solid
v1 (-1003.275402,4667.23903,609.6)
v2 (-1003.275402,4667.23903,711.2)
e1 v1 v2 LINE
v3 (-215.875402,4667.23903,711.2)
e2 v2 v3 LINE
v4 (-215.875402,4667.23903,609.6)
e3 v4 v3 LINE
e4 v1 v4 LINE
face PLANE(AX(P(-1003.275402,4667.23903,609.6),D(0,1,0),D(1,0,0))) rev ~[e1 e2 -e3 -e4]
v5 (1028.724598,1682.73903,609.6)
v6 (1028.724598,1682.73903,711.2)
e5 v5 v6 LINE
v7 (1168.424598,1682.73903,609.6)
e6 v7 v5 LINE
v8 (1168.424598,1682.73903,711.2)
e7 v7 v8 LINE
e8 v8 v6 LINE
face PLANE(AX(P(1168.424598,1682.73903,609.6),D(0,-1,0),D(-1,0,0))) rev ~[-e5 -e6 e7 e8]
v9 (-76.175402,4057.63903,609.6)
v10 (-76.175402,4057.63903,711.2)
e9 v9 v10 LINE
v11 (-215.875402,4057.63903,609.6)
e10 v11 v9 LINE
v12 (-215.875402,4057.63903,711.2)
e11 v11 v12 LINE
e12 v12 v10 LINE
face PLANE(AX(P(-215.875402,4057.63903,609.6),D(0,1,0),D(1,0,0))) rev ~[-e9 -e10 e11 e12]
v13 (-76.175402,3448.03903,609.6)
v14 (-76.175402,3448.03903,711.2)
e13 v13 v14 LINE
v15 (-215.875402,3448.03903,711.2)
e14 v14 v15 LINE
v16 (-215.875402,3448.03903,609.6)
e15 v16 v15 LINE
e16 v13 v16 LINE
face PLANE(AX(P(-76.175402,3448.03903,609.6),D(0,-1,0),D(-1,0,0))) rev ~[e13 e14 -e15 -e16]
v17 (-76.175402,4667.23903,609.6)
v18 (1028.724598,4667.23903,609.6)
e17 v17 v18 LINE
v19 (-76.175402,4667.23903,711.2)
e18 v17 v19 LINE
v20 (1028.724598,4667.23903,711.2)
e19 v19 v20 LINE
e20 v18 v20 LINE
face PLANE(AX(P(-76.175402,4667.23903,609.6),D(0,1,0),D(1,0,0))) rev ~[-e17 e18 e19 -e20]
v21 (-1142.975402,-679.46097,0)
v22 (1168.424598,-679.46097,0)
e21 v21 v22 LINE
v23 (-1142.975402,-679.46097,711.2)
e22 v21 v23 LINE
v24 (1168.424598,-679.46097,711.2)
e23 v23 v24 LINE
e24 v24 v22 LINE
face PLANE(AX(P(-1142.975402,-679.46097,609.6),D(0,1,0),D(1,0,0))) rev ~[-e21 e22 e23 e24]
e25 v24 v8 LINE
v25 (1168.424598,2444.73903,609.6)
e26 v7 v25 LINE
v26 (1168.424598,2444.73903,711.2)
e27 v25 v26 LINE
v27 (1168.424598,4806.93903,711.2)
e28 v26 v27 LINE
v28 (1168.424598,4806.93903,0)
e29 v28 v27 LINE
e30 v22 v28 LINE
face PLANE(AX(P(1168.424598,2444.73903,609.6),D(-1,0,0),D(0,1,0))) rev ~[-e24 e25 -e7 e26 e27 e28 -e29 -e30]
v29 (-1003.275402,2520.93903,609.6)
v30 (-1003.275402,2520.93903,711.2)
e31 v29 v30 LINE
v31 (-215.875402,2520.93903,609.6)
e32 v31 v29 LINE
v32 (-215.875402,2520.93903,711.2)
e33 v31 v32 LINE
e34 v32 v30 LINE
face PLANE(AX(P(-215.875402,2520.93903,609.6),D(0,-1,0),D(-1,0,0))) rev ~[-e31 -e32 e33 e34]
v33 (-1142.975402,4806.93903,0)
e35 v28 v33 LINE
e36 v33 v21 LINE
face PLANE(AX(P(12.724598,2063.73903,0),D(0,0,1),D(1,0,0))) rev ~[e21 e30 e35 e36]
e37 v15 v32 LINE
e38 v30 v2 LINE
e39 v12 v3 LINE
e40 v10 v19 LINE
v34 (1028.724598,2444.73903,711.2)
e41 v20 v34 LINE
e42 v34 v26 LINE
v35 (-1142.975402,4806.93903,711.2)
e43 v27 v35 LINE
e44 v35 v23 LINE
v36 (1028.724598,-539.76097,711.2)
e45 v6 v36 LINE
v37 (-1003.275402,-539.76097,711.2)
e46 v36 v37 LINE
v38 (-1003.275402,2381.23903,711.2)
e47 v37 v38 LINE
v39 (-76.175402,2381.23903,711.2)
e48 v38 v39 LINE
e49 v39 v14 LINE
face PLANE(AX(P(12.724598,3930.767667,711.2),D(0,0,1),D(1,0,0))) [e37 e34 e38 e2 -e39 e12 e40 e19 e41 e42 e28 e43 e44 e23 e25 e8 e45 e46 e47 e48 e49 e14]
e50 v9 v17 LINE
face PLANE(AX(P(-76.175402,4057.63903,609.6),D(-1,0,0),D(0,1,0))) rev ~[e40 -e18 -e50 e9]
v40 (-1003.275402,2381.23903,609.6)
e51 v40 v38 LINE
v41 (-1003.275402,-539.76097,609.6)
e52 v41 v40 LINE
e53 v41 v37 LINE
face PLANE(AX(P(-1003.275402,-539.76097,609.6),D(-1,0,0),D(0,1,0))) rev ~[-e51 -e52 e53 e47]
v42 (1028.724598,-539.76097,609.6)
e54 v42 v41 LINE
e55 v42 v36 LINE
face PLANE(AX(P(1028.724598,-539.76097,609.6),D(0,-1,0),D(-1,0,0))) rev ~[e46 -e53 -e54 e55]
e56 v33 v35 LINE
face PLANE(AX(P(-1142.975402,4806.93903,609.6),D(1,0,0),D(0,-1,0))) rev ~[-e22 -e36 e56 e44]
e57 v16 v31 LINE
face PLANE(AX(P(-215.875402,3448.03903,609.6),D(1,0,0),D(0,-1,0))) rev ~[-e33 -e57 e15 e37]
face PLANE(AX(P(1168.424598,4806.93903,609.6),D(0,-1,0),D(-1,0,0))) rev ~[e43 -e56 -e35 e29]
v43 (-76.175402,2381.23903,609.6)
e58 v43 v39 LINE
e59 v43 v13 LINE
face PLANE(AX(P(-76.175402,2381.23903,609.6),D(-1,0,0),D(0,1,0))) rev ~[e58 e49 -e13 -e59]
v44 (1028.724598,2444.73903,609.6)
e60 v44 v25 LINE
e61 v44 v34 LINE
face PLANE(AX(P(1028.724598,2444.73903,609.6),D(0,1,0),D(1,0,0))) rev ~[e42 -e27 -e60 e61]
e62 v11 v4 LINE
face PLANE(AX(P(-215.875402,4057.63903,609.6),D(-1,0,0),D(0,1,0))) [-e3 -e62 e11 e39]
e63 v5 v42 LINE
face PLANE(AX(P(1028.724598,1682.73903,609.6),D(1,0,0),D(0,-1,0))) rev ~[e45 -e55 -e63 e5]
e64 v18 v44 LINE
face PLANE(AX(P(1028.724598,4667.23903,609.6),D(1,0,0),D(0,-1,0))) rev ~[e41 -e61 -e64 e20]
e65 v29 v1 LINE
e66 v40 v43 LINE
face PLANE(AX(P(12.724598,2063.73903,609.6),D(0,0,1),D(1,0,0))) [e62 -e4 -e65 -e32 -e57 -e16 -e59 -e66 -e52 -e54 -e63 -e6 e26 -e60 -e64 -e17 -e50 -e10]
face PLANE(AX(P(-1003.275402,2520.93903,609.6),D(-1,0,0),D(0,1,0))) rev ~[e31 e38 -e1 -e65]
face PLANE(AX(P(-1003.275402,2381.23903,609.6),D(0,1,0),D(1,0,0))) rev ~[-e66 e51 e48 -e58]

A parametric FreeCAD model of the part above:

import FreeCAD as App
import Part
import Sketcher
from FreeCAD import Vector
Q = App.Units.Quantity

doc = App.newDocument("Part")
body = doc.addObject("PartDesign::Body", "Body")

# Sketch on XY plane
sketch1 = body.newObject("Sketcher::SketchObject", "Sketch")
sketch1.AttachmentSupport = (doc.getObject("XY_Plane"), [""])
sketch1.MapMode = "FlatFace"
sketch1.addGeometry([
    Part.LineSegment(Vector(-1142.975402, 4806.93903, 0), Vector(-1142.975402, -679.46097, 0)),
    Part.LineSegment(Vector(-1142.975402, -679.46097, 0), Vector(1168.424598, -679.46097, 0)),
    Part.LineSegment(Vector(1168.424598, -679.46097, 0), Vector(1168.424598, 4806.93903, 0)),
    Part.LineSegment(Vector(1168.424598, 4806.93903, 0), Vector(-1142.975402, 4806.93903, 0)),
], False)
sketch1.addConstraint([
    Sketcher.Constraint("Coincident", 0, 2, 1, 1),
    Sketcher.Constraint("Coincident", 1, 2, 2, 1),
    Sketcher.Constraint("Coincident", 2, 2, 3, 1),
    Sketcher.Constraint("Coincident", 3, 2, 0, 1),
    Sketcher.Constraint("Vertical", 0),
    Sketcher.Constraint("Horizontal", 1),
    Sketcher.Constraint("Vertical", 2),
    Sketcher.Constraint("Horizontal", 3),
    Sketcher.Constraint("DistanceX", 1, 1, 1, 2, Q("91 in")),
    Sketcher.Constraint("DistanceY", 0, 2, 0, 1, Q("216 in")),
    Sketcher.Constraint("DistanceX", 0, 2, -1, 1, Q("1142.975402 mm")),
    Sketcher.Constraint("DistanceY", 0, 2, -1, 1, Q("679.46097 mm")),
])
pad1 = body.newObject("PartDesign::Pad", "Pad")
pad1.Profile = sketch1
pad1.Length = Q("24 in")

# Sketch on XY plane
sketch2 = body.newObject("Sketcher::SketchObject", "Sketch001")
sketch2.AttachmentSupport = (doc.getObject("XY_Plane"), [""])
sketch2.MapMode = "FlatFace"
sketch2.AttachmentOffset = App.Placement(Vector(0, 0, 24 * 25.4), App.Rotation())
sketch2.addGeometry([
    Part.LineSegment(Vector(1028.724598, 4667.23903, 0), Vector(1028.724598, 2444.73903, 0)),  # 0
    Part.LineSegment(Vector(1028.724598, 2444.73903, 0), Vector(1168.424598, 2444.73903, 0)),  # 1
    Part.LineSegment(Vector(1168.424598, 2444.73903, 0), Vector(1168.424598, 4806.93903, 0)),  # 2
    Part.LineSegment(Vector(1168.424598, 4806.93903, 0), Vector(-1142.975402, 4806.93903, 0)),  # 3
    Part.LineSegment(Vector(-1142.975402, 4806.93903, 0), Vector(-1142.975402, -679.46097, 0)),  # 4
    Part.LineSegment(Vector(-1142.975402, -679.46097, 0), Vector(1168.424598, -679.46097, 0)),  # 5
    Part.LineSegment(Vector(1168.424598, -679.46097, 0), Vector(1168.424598, 1682.73903, 0)),  # 6
    Part.LineSegment(Vector(1168.424598, 1682.73903, 0), Vector(1028.724598, 1682.73903, 0)),  # 7
    Part.LineSegment(Vector(1028.724598, 1682.73903, 0), Vector(1028.724598, -539.76097, 0)),  # 8
    Part.LineSegment(Vector(1028.724598, -539.76097, 0), Vector(-1003.275402, -539.76097, 0)),  # 9
    Part.LineSegment(Vector(-1003.275402, -539.76097, 0), Vector(-1003.275402, 2381.23903, 0)),  # 10
    Part.LineSegment(Vector(-1003.275402, 2381.23903, 0), Vector(-76.175402, 2381.23903, 0)),  # 11
    Part.LineSegment(Vector(-76.175402, 2381.23903, 0), Vector(-76.175402, 3448.03903, 0)),  # 12
    Part.LineSegment(Vector(-76.175402, 3448.03903, 0), Vector(-215.875402, 3448.03903, 0)),  # 13
    Part.LineSegment(Vector(-215.875402, 3448.03903, 0), Vector(-215.875402, 2520.93903, 0)),  # 14
    Part.LineSegment(Vector(-215.875402, 2520.93903, 0), Vector(-1003.275402, 2520.93903, 0)),  # 15
    Part.LineSegment(Vector(-1003.275402, 2520.93903, 0), Vector(-1003.275402, 4667.23903, 0)),  # 16
    Part.LineSegment(Vector(-1003.275402, 4667.23903, 0), Vector(-215.875402, 4667.23903, 0)),  # 17
    Part.LineSegment(Vector(-215.875402, 4667.23903, 0), Vector(-215.875402, 4057.63903, 0)),  # 18
    Part.LineSegment(Vector(-215.875402, 4057.63903, 0), Vector(-76.175402, 4057.63903, 0)),  # 19
    Part.LineSegment(Vector(-76.175402, 4057.63903, 0), Vector(-76.175402, 4667.23903, 0)),  # 20
    Part.LineSegment(Vector(-76.175402, 4667.23903, 0), Vector(1028.724598, 4667.23903, 0)),  # 21
], False)
sketch2.addConstraint([
    Sketcher.Constraint("Coincident", 0, 2, 1, 1),
    Sketcher.Constraint("Coincident", 1, 2, 2, 1),
    Sketcher.Constraint("Coincident", 2, 2, 3, 1),
    Sketcher.Constraint("Coincident", 3, 2, 4, 1),
    Sketcher.Constraint("Coincident", 4, 2, 5, 1),
    Sketcher.Constraint("Coincident", 5, 2, 6, 1),
    Sketcher.Constraint("Coincident", 6, 2, 7, 1),
    Sketcher.Constraint("Coincident", 7, 2, 8, 1),
    Sketcher.Constraint("Coincident", 8, 2, 9, 1),
    Sketcher.Constraint("Coincident", 9, 2, 10, 1),
    Sketcher.Constraint("Coincident", 10, 2, 11, 1),
    Sketcher.Constraint("Coincident", 11, 2, 12, 1),
    Sketcher.Constraint("Coincident", 12, 2, 13, 1),
    Sketcher.Constraint("Coincident", 13, 2, 14, 1),
    Sketcher.Constraint("Coincident", 14, 2, 15, 1),
    Sketcher.Constraint("Coincident", 15, 2, 16, 1),
    Sketcher.Constraint("Coincident", 16, 2, 17, 1),
    Sketcher.Constraint("Coincident", 17, 2, 18, 1),
    Sketcher.Constraint("Coincident", 18, 2, 19, 1),
    Sketcher.Constraint("Coincident", 19, 2, 20, 1),
    Sketcher.Constraint("Coincident", 20, 2, 21, 1),
    Sketcher.Constraint("Coincident", 21, 2, 0, 1),
    Sketcher.Constraint("Vertical", 0),
    Sketcher.Constraint("Horizontal", 1),
    Sketcher.Constraint("Vertical", 2),
    Sketcher.Constraint("Horizontal", 3),
    Sketcher.Constraint("Vertical", 4),
    Sketcher.Constraint("Horizontal", 5),
    Sketcher.Constraint("Vertical", 6),
    Sketcher.Constraint("Horizontal", 7),
    Sketcher.Constraint("Vertical", 8),
    Sketcher.Constraint("Horizontal", 9),
    Sketcher.Constraint("Vertical", 10),
    Sketcher.Constraint("Horizontal", 11),
    Sketcher.Constraint("Vertical", 12),
    Sketcher.Constraint("Horizontal", 13),
    Sketcher.Constraint("Vertical", 14),
    Sketcher.Constraint("Horizontal", 15),
    Sketcher.Constraint("Vertical", 16),
    Sketcher.Constraint("Horizontal", 17),
    Sketcher.Constraint("Vertical", 18),
    Sketcher.Constraint("Horizontal", 19),
    Sketcher.Constraint("Vertical", 20),
    Sketcher.Constraint("Horizontal", 21),
    Sketcher.Constraint("Horizontal", 17, 2, 20, 2),
    Sketcher.Constraint("Vertical", 2, 2, 5, 2),
    Sketcher.Constraint("Vertical", 0, 2, 7, 2),
    Sketcher.Constraint("Vertical", 10, 2, 15, 2),
    Sketcher.Constraint("Vertical", 14, 2, 17, 2),
    Sketcher.Constraint("Vertical", 12, 2, 19, 2),
    Sketcher.Constraint("Equal", 7, 13),
    Sketcher.Constraint("Equal", 2, 6),
    Sketcher.Constraint("Equal", 0, 8),
    Sketcher.Constraint("Equal", 11, 14),
    Sketcher.Constraint("DistanceX", 3, 2, 3, 1, Q("91 in")),
    Sketcher.Constraint("DistanceX", 9, 2, 9, 1, Q("80 in")),
    Sketcher.Constraint("DistanceX", 15, 2, 15, 1, Q("31 in")),
    Sketcher.Constraint("DistanceY", 2, 1, 2, 2, Q("93 in")),
    Sketcher.Constraint("DistanceY", 4, 2, 4, 1, Q("216 in")),
    Sketcher.Constraint("DistanceY", 10, 1, 10, 2, Q("115 in")),
    Sketcher.Constraint("DistanceY", 12, 1, 12, 2, Q("42 in")),
    Sketcher.Constraint("DistanceY", 18, 2, 18, 1, Q("24 in")),
    Sketcher.Constraint("DistanceX", 1, 1, 1, 2, Q("5.5 in")),
    Sketcher.Constraint("DistanceY", 0, 2, 0, 1, Q("87.5 in")),
    Sketcher.Constraint("DistanceX", -1, 1, 0, 2, Q("1028.724598 mm")),
    Sketcher.Constraint("DistanceY", -1, 1, 0, 2, Q("2444.73903 mm")),
])
pad2 = body.newObject("PartDesign::Pad", "Pad001")
pad2.Profile = sketch2
pad2.Length = Q("4 in")

doc.recompute()
